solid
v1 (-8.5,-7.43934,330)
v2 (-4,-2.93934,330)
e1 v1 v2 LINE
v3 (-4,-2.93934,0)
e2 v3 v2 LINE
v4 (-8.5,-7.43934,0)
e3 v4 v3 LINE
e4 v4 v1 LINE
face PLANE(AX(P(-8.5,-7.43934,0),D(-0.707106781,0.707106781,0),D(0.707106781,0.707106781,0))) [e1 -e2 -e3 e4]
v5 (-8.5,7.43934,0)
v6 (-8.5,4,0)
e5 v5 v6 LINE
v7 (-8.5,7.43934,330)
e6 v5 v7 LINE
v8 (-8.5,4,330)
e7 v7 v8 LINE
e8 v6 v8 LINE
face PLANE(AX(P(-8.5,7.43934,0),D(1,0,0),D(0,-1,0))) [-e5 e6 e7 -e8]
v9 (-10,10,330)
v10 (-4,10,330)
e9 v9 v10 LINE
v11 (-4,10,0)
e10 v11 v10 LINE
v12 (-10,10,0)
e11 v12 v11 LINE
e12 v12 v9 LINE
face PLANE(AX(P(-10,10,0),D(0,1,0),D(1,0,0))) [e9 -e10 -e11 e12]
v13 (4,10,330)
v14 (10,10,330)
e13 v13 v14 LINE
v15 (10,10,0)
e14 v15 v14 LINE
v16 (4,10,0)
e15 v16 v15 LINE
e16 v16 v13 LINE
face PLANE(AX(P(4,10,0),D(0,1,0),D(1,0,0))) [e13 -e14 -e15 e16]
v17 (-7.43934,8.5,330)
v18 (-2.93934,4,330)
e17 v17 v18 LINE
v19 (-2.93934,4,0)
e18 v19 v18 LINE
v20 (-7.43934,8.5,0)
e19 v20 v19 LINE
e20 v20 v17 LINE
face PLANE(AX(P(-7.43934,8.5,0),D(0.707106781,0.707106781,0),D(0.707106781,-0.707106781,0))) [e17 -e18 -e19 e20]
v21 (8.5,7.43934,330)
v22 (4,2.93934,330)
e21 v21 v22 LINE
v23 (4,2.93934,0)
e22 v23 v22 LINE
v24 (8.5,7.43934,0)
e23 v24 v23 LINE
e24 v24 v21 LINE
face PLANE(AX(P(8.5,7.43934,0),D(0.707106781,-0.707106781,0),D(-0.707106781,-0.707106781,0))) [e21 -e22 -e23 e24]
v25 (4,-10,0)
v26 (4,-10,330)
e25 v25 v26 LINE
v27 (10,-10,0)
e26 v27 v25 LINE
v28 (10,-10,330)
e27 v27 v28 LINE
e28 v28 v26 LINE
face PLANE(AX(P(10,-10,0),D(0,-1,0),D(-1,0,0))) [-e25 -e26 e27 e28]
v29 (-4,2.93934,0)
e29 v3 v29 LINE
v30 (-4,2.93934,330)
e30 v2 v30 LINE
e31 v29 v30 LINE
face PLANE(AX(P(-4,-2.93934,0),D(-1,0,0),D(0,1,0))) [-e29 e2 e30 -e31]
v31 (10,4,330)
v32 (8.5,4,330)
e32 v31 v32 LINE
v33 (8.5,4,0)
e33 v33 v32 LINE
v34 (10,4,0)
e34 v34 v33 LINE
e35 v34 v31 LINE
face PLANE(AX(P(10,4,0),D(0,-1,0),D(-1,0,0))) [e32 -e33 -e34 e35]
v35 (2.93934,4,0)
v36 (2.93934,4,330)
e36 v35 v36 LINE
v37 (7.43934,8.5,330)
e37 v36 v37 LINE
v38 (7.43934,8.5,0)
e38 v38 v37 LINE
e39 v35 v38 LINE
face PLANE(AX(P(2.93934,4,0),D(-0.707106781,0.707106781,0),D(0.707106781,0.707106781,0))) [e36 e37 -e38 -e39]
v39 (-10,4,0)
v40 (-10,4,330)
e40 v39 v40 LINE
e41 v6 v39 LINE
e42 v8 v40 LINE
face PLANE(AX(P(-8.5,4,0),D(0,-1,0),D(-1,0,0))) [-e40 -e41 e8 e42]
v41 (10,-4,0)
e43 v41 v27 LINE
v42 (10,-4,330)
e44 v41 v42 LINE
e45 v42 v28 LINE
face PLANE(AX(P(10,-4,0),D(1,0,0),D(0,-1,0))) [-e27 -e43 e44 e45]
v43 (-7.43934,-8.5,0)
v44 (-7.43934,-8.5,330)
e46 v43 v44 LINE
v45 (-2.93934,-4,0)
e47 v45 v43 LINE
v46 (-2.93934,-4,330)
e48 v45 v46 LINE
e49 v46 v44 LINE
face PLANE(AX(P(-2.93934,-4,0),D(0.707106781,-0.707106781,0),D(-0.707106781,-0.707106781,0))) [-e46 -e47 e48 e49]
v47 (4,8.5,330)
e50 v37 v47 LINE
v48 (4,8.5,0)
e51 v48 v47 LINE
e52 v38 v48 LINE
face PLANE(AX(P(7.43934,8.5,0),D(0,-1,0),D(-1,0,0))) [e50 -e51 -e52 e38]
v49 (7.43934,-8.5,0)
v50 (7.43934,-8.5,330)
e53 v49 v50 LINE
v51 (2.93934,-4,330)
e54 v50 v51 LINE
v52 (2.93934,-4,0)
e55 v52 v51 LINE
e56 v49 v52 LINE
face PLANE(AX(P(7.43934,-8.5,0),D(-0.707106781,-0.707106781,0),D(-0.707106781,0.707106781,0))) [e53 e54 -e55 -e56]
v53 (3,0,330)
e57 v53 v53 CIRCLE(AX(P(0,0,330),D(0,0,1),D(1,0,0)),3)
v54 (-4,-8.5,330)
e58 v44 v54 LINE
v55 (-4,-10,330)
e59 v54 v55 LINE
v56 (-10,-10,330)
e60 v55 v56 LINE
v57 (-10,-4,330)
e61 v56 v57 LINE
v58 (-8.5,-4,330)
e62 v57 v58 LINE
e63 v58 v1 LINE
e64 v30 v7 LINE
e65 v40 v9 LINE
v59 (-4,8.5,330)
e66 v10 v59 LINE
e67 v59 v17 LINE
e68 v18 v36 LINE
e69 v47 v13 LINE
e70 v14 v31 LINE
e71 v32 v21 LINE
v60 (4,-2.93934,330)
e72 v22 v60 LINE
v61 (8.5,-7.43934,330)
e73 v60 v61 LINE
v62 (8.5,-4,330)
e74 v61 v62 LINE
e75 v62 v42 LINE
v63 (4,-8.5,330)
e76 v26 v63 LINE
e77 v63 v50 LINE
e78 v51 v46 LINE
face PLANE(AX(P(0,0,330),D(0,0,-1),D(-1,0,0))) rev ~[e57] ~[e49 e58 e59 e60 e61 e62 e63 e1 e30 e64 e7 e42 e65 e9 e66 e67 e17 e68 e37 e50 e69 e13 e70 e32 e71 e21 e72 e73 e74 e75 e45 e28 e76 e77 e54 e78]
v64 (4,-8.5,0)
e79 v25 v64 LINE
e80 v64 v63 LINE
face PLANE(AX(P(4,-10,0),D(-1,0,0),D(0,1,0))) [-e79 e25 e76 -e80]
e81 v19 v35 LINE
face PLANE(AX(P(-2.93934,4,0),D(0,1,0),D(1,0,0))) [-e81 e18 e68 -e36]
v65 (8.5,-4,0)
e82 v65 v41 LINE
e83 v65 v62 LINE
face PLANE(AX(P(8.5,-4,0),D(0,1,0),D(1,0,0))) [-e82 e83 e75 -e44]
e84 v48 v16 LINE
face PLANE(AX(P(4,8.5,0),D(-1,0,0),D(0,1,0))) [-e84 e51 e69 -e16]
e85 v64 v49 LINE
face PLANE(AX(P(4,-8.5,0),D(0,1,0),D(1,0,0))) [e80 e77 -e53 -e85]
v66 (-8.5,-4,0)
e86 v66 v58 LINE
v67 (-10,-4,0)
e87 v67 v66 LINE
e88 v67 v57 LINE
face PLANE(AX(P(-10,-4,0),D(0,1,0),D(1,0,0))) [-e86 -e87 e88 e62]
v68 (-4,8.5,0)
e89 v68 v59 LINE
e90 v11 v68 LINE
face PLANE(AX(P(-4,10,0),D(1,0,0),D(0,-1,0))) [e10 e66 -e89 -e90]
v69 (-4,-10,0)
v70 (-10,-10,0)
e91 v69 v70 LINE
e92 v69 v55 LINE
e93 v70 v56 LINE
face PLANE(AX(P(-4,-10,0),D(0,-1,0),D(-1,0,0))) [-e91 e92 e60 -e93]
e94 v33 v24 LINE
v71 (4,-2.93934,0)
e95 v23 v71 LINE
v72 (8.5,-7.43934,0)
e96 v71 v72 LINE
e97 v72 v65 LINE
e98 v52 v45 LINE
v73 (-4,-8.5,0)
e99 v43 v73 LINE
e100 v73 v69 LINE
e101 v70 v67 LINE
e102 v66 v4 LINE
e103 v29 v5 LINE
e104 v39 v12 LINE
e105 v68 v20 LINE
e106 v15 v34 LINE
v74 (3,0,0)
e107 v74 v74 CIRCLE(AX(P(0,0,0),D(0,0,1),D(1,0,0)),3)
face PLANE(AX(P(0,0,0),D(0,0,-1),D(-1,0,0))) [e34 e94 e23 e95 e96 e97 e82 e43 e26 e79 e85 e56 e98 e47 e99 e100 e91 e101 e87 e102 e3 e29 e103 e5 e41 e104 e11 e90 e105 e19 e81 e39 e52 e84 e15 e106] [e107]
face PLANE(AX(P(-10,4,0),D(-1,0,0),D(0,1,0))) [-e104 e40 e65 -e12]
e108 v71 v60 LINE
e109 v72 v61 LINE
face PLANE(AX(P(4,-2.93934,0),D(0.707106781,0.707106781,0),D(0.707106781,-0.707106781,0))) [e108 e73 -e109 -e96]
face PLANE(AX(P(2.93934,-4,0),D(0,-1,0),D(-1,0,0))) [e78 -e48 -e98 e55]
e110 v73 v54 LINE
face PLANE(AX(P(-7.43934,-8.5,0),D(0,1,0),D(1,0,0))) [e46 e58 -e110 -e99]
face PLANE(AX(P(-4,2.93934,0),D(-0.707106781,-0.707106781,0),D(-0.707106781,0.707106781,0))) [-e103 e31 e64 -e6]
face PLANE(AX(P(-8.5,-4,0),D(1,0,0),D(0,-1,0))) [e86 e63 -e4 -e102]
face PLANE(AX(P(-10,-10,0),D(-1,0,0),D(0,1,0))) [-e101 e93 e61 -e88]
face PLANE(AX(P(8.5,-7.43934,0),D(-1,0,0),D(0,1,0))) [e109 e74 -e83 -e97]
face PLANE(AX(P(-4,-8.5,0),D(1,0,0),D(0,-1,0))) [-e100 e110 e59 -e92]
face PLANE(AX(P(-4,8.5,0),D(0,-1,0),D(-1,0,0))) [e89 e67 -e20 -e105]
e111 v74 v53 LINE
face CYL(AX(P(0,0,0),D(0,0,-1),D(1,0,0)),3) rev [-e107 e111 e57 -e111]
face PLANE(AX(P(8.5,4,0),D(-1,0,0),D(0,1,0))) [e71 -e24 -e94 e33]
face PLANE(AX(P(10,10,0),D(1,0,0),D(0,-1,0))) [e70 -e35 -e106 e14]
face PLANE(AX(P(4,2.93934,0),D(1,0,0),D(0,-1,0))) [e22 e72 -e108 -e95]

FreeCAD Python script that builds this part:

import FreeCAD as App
import Part
import Sketcher

V = App.Vector
Q = App.Units.Quantity

doc = App.newDocument("Part")
params = doc.addObject("Spreadsheet::Sheet", "Params")
for row, (alias, value) in enumerate([
    ("sketch1_diameter", "6 mm"),
    ("sketch1_width", "6 mm"),
    ("sketch1_width2", "1.5 mm"),
    ("pad1_length", "330 mm"),
], start=1):
    params.set(f"A{row}", alias)
    params.set(f"B{row}", "=" + value)
    params.setAlias(f"B{row}", alias)

body = doc.addObject("PartDesign::Body", "Body")

sketch1 = body.newObject("Sketcher::SketchObject", "Sketch")
sketch1.AttachmentSupport = (doc.getObject("XY_Plane"), [""])
sketch1.MapMode = "FlatFace"
sketch1.addGeometry(Part.LineSegment(V(2.93934, 4, 0), V(-2.93934, 4, 0)), False)
sketch1.addGeometry(Part.LineSegment(V(-2.93934, 4, 0), V(-7.43934, 8.5, 0)), False)
sketch1.addGeometry(Part.LineSegment(V(-7.43934, 8.5, 0), V(-4, 8.5, 0)), False)
sketch1.addGeometry(Part.LineSegment(V(-4, 8.5, 0), V(-4, 10, 0)), False)
sketch1.addGeometry(Part.LineSegment(V(-4, 10, 0), V(-10, 10, 0)), False)
sketch1.addGeometry(Part.LineSegment(V(-10, 10, 0), V(-10, 4, 0)), False)
sketch1.addGeometry(Part.LineSegment(V(-10, 4, 0), V(-8.5, 4, 0)), False)
sketch1.addGeometry(Part.LineSegment(V(-8.5, 4, 0), V(-8.5, 7.43934, 0)), False)
sketch1.addGeometry(Part.LineSegment(V(-8.5, 7.43934, 0), V(-4, 2.93934, 0)), False)
sketch1.addGeometry(Part.LineSegment(V(-4, 2.93934, 0), V(-4, -2.93934, 0)), False)
sketch1.addGeometry(Part.LineSegment(V(-4, -2.93934, 0), V(-8.5, -7.43934, 0)), False)
sketch1.addGeometry(Part.LineSegment(V(-8.5, -7.43934, 0), V(-8.5, -4, 0)), False)
sketch1.addGeometry(Part.LineSegment(V(-8.5, -4, 0), V(-10, -4, 0)), False)
sketch1.addGeometry(Part.LineSegment(V(-10, -4, 0), V(-10, -10, 0)), False)
sketch1.addGeometry(Part.LineSegment(V(-10, -10, 0), V(-4, -10, 0)), False)
sketch1.addGeometry(Part.LineSegment(V(-4, -10, 0), V(-4, -8.5, 0)), False)
sketch1.addGeometry(Part.LineSegment(V(-4, -8.5, 0), V(-7.43934, -8.5, 0)), False)
sketch1.addGeometry(Part.LineSegment(V(-7.43934, -8.5, 0), V(-2.93934, -4, 0)), False)
sketch1.addGeometry(Part.LineSegment(V(-2.93934, -4, 0), V(2.93934, -4, 0)), False)
sketch1.addGeometry(Part.LineSegment(V(2.93934, -4, 0), V(7.43934, -8.5, 0)), False)
sketch1.addGeometry(Part.LineSegment(V(7.43934, -8.5, 0), V(4, -8.5, 0)), False)
sketch1.addGeometry(Part.LineSegment(V(4, -8.5, 0), V(4, -10, 0)), False)
sketch1.addGeometry(Part.LineSegment(V(4, -10, 0), V(10, -10, 0)), False)
sketch1.addGeometry(Part.LineSegment(V(10, -10, 0), V(10, -4, 0)), False)
sketch1.addGeometry(Part.LineSegment(V(10, -4, 0), V(8.5, -4, 0)), False)
sketch1.addGeometry(Part.LineSegment(V(8.5, -4, 0), V(8.5, -7.43934, 0)), False)
sketch1.addGeometry(Part.LineSegment(V(8.5, -7.43934, 0), V(4, -2.93934, 0)), False)
sketch1.addGeometry(Part.LineSegment(V(4, -2.93934, 0), V(4, 2.93934, 0)), False)
sketch1.addGeometry(Part.LineSegment(V(4, 2.93934, 0), V(8.5, 7.43934, 0)), False)
sketch1.addGeometry(Part.LineSegment(V(8.5, 7.43934, 0), V(8.5, 4, 0)), False)
sketch1.addGeometry(Part.LineSegment(V(8.5, 4, 0), V(10, 4, 0)), False)
sketch1.addGeometry(Part.LineSegment(V(10, 4, 0), V(10, 10, 0)), False)
sketch1.addGeometry(Part.LineSegment(V(10, 10, 0), V(4, 10, 0)), False)
sketch1.addGeometry(Part.LineSegment(V(4, 10, 0), V(4, 8.5, 0)), False)
sketch1.addGeometry(Part.LineSegment(V(4, 8.5, 0), V(7.43934, 8.5, 0)), False)
sketch1.addGeometry(Part.LineSegment(V(7.43934, 8.5, 0), V(2.93934, 4, 0)), False)
sketch1.addGeometry(Part.Circle(V(0, 0, 0), V(0, 0, 1), 3), False)
sketch1.addConstraint(Sketcher.Constraint("Coincident", 0, 2, 1, 1))
sketch1.addConstraint(Sketcher.Constraint("Coincident", 1, 2, 2, 1))
sketch1.addConstraint(Sketcher.Constraint("Coincident", 2, 2, 3, 1))
sketch1.addConstraint(Sketcher.Constraint("Coincident", 3, 2, 4, 1))
sketch1.addConstraint(Sketcher.Constraint("Coincident", 4, 2, 5, 1))
sketch1.addConstraint(Sketcher.Constraint("Coincident", 5, 2, 6, 1))
sketch1.addConstraint(Sketcher.Constraint("Coincident", 6, 2, 7, 1))
sketch1.addConstraint(Sketcher.Constraint("Coincident", 7, 2, 8, 1))
sketch1.addConstraint(Sketcher.Constraint("Coincident", 8, 2, 9, 1))
sketch1.addConstraint(Sketcher.Constraint("Coincident", 9, 2, 10, 1))
sketch1.addConstraint(Sketcher.Constraint("Coincident", 10, 2, 11, 1))
sketch1.addConstraint(Sketcher.Constraint("Coincident", 11, 2, 12, 1))
sketch1.addConstraint(Sketcher.Constraint("Coincident", 12, 2, 13, 1))
sketch1.addConstraint(Sketcher.Constraint("Coincident", 13, 2, 14, 1))
sketch1.addConstraint(Sketcher.Constraint("Coincident", 14, 2, 15, 1))
sketch1.addConstraint(Sketcher.Constraint("Coincident", 15, 2, 16, 1))
sketch1.addConstraint(Sketcher.Constraint("Coincident", 16, 2, 17, 1))
sketch1.addConstraint(Sketcher.Constraint("Coincident", 17, 2, 18, 1))
sketch1.addConstraint(Sketcher.Constraint("Coincident", 18, 2, 19, 1))
sketch1.addConstraint(Sketcher.Constraint("Coincident", 19, 2, 20, 1))
sketch1.addConstraint(Sketcher.Constraint("Coincident", 20, 2, 21, 1))
sketch1.addConstraint(Sketcher.Constraint("Coincident", 21, 2, 22, 1))
sketch1.addConstraint(Sketcher.Constraint("Coincident", 22, 2, 23, 1))
sketch1.addConstraint(Sketcher.Constraint("Coincident", 23, 2, 24, 1))
sketch1.addConstraint(Sketcher.Constraint("Coincident", 24, 2, 25, 1))
sketch1.addConstraint(Sketcher.Constraint("Coincident", 25, 2, 26, 1))
sketch1.addConstraint(Sketcher.Constraint("Coincident", 26, 2, 27, 1))
sketch1.addConstraint(Sketcher.Constraint("Coincident", 27, 2, 28, 1))
sketch1.addConstraint(Sketcher.Constraint("Coincident", 28, 2, 29, 1))
sketch1.addConstraint(Sketcher.Constraint("Coincident", 29, 2, 30, 1))
sketch1.addConstraint(Sketcher.Constraint("Coincident", 30, 2, 31, 1))
sketch1.addConstraint(Sketcher.Constraint("Coincident", 31, 2, 32, 1))
sketch1.addConstraint(Sketcher.Constraint("Coincident", 32, 2, 33, 1))
sketch1.addConstraint(Sketcher.Constraint("Coincident", 33, 2, 34, 1))
sketch1.addConstraint(Sketcher.Constraint("Coincident", 34, 2, 35, 1))
sketch1.addConstraint(Sketcher.Constraint("Coincident", 35, 2, 0, 1))
sketch1.addConstraint(Sketcher.Constraint("Horizontal", 0))
sketch1.addConstraint(Sketcher.Constraint("Horizontal", 2))
sketch1.addConstraint(Sketcher.Constraint("Vertical", 3))
sketch1.addConstraint(Sketcher.Constraint("Horizontal", 4))
sketch1.addConstraint(Sketcher.Constraint("Vertical", 5))
sketch1.addConstraint(Sketcher.Constraint("Horizontal", 6))
sketch1.addConstraint(Sketcher.Constraint("Vertical", 7))
sketch1.addConstraint(Sketcher.Constraint("Vertical", 9))
sketch1.addConstraint(Sketcher.Constraint("Vertical", 11))
sketch1.addConstraint(Sketcher.Constraint("Horizontal", 12))
sketch1.addConstraint(Sketcher.Constraint("Vertical", 13))
sketch1.addConstraint(Sketcher.Constraint("Horizontal", 14))
sketch1.addConstraint(Sketcher.Constraint("Vertical", 15))
sketch1.addConstraint(Sketcher.Constraint("Horizontal", 16))
sketch1.addConstraint(Sketcher.Constraint("Horizontal", 18))
sketch1.addConstraint(Sketcher.Constraint("Horizontal", 20))
sketch1.addConstraint(Sketcher.Constraint("Vertical", 21))
sketch1.addConstraint(Sketcher.Constraint("Horizontal", 22))
sketch1.addConstraint(Sketcher.Constraint("Vertical", 23))
sketch1.addConstraint(Sketcher.Constraint("Horizontal", 24))
sketch1.addConstraint(Sketcher.Constraint("Vertical", 25))
sketch1.addConstraint(Sketcher.Constraint("Vertical", 27))
sketch1.addConstraint(Sketcher.Constraint("Vertical", 29))
sketch1.addConstraint(Sketcher.Constraint("Horizontal", 30))
sketch1.addConstraint(Sketcher.Constraint("Vertical", 31))
sketch1.addConstraint(Sketcher.Constraint("Horizontal", 32))
sketch1.addConstraint(Sketcher.Constraint("Vertical", 33))
sketch1.addConstraint(Sketcher.Constraint("Horizontal", 34))
sketch1.addConstraint(Sketcher.Constraint("Coincident", 36, 3, -1, 1))
sketch1.addConstraint(Sketcher.Constraint("Symmetric", 0, 2, 18, 2, -1, 1))
sketch1.addConstraint(Sketcher.Constraint("Symmetric", 1, 2, 19, 2, -1, 1))
sketch1.addConstraint(Sketcher.Constraint("Symmetric", 3, 2, 21, 2, -1, 1))
sketch1.addConstraint(Sketcher.Constraint("Symmetric", 5, 2, 23, 2, -1, 1))
sketch1.addConstraint(Sketcher.Constraint("Symmetric", 7, 2, 25, 2, -1, 1))
sketch1.addConstraint(Sketcher.Constraint("Symmetric", 8, 2, 26, 2, -1, 1))
sketch1.addConstraint(Sketcher.Constraint("Symmetric", 10, 2, 28, 2, -1, 1))
sketch1.addConstraint(Sketcher.Constraint("Symmetric", 12, 2, 30, 2, -1, 1))
sketch1.addConstraint(Sketcher.Constraint("Symmetric", 14, 2, 32, 2, -1, 1))
sketch1.addConstraint(Sketcher.Constraint("Symmetric", 16, 2, 34, 2, -1, 1))
sketch1.addConstraint(Sketcher.Constraint("Symmetric", 16, 2, 19, 2, -2))
sketch1.addConstraint(Sketcher.Constraint("Symmetric", 14, 2, 21, 2, -2))
sketch1.addConstraint(Sketcher.Constraint("Symmetric", 12, 2, 23, 2, -2))
sketch1.addConstraint(Sketcher.Constraint("Symmetric", 10, 2, 25, 2, -2))
sketch1.addConstraint(Sketcher.Constraint("Parallel", 1, 8))
sketch1.addConstraint(Sketcher.Constraint("Perpendicular", 8, 10))
sketch1.addConstraint(Sketcher.Constraint("Parallel", 10, 17))
sketch1.addConstraint(Sketcher.Constraint("Perpendicular", 26, 28))
sketch1.addConstraint(Sketcher.Constraint("Parallel", 28, 35))
sketch1.addConstraint(Sketcher.Constraint("Horizontal", 0, 2, 5, 2))
sketch1.addConstraint(Sketcher.Constraint("Horizontal", 9, 2, 26, 2))
sketch1.addConstraint(Sketcher.Constraint("Vertical", 3, 2, 8, 2))
sketch1.addConstraint(Sketcher.Constraint("Equal", 30, 3))
sketch1.addConstraint(Sketcher.Constraint("Equal", 32, 5))
sketch1.addConstraint(Sketcher.Constraint("Equal", 34, 7))
sketch1.addConstraint(Sketcher.Constraint("Equal", 18, 9))
sketch1.addConstraint(Sketcher.Constraint("Diameter", 36, Q("6 mm")))
sketch1.addConstraint(Sketcher.Constraint("DistanceX", 4, 2, 4, 1, Q("6 mm")))
sketch1.addConstraint(Sketcher.Constraint("DistanceX", 6, 1, 6, 2, Q("1.5 mm")))
sketch1.addConstraint(Sketcher.Constraint("DistanceY", -1, 1, 0, 2, Q("4 mm")))
sketch1.addConstraint(Sketcher.Constraint("DistanceX", 0, 2, 0, 1, Q("5.87868 mm")))
sketch1.setExpression("Constraints[91]", "Params.sketch1_diameter")
sketch1.setExpression("Constraints[92]", "Params.sketch1_width")
sketch1.setExpression("Constraints[93]", "Params.sketch1_width2")
pad1 = body.newObject("PartDesign::Pad", "Pad")
pad1.Profile = sketch1
pad1.setExpression("Length", "Params.pad1_length")

doc.recompute()
